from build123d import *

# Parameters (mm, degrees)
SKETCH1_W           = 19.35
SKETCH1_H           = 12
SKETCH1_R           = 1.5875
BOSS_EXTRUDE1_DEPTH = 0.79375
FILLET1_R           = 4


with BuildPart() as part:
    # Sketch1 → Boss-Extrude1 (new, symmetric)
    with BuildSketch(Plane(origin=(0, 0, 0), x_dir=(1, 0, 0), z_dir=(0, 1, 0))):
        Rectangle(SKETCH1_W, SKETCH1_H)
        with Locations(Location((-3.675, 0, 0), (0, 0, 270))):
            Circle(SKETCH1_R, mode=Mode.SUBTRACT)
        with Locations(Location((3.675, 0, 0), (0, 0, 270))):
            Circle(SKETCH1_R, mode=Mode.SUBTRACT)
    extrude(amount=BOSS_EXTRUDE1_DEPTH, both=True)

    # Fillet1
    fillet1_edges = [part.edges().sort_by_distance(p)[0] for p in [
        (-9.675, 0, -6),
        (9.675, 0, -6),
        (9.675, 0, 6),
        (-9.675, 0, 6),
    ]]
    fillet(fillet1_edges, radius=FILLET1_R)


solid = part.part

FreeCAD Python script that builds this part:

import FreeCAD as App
import Part
import Sketcher

V = App.Vector
Q = App.Units.Quantity


def edges_at(feature, points):
    """Names of the edges that pass closest to the given points."""
    edges = feature.Shape.Edges
    near = lambda p: min(range(len(edges)), key=lambda i: edges[i].distToShape(Part.Vertex(*p))[0])
    return sorted({f"Edge{near(p) + 1}" for p in points})

doc = App.newDocument("Part")
params = doc.addObject("Spreadsheet::Sheet", "Params")
for row, (alias, value) in enumerate([
    ("sketch1_height", "12 mm"),
    ("sketch1_width", "19.35 mm"),
    ("pad1_length", "1.5875 mm"),
    ("fillet_radius", "4 mm"),
], start=1):
    params.set(f"A{row}", alias)
    params.set(f"B{row}", "=" + value)
    params.setAlias(f"B{row}", alias)

body = doc.addObject("PartDesign::Body", "Body")

sketch1 = doc.addObject("Sketcher::SketchObject", "Sketch")
body.addObject(sketch1)
sketch1.AttachmentSupport = (doc.XZ_Plane, [""])
sketch1.MapMode = "FlatFace"
sketch1.addGeometry(Part.LineSegment(V(-9.7, -6, 0), V(-9.7, 6, 0)), False)
sketch1.addGeometry(Part.LineSegment(V(-9.7, 6, 0), V(9.7, 6, 0)), False)
sketch1.addGeometry(Part.LineSegment(V(9.7, 6, 0), V(9.7, -6, 0)), False)
sketch1.addGeometry(Part.LineSegment(V(9.7, -6, 0), V(-9.7, -6, 0)), False)
sketch1.addGeometry(Part.Circle(V(-3.7, 0, 0), V(0, 0, 1), 1.6), False)
sketch1.addGeometry(Part.Circle(V(3.7, 0, 0), V(0, 0, 1), 1.6), False)
sketch1.addConstraint(Sketcher.Constraint("Coincident", 0, 2, 1, 1))
sketch1.addConstraint(Sketcher.Constraint("Coincident", 1, 2, 2, 1))
sketch1.addConstraint(Sketcher.Constraint("Coincident", 2, 2, 3, 1))
sketch1.addConstraint(Sketcher.Constraint("Coincident", 3, 2, 0, 1))
sketch1.addConstraint(Sketcher.Constraint("Vertical", 0))
sketch1.addConstraint(Sketcher.Constraint("Horizontal", 1))
sketch1.addConstraint(Sketcher.Constraint("Vertical", 2))
sketch1.addConstraint(Sketcher.Constraint("Horizontal", 3))
sketch1.addConstraint(Sketcher.Constraint("Equal", 4, 5))
sketch1.addConstraint(Sketcher.Constraint("Symmetric", 4, 3, 5, 3, -1, 1))
sketch1.addConstraint(Sketcher.Constraint("Symmetric", 0, 2, 2, 2, -1, 1))
sketch1.addConstraint(Sketcher.Constraint("PointOnObject", 4, 3, -1))
sketch1.addConstraint(Sketcher.Constraint("DistanceY", 0, 1, 0, 2, Q("12 mm")))
sketch1.addConstraint(Sketcher.Constraint("Diameter", 4, Q("3.175 mm")))
sketch1.addConstraint(Sketcher.Constraint("DistanceX", 0, 2, 4, 3, Q("6 mm")))
sketch1.addConstraint(Sketcher.Constraint("DistanceX", 1, 1, 1, 2, Q("19.35 mm")))
sketch1.setExpression("Constraints[12]", "Params.sketch1_height")
sketch1.setExpression("Constraints[15]", "Params.sketch1_width")
pad1 = doc.addObject("PartDesign::Pad", "Pad")
body.addObject(pad1)
pad1.Profile = sketch1
pad1.setExpression("Length", "Params.pad1_length")
pad1.Midplane = True
doc.recompute()

fillet = doc.addObject("PartDesign::Fillet", "Fillet")
body.addObject(fillet)
fillet.Base = (pad1, edges_at(pad1, [
    (-9.675, 0, -6),
    (9.675, 0, -6),
    (9.675, 0, 6),
    (-9.675, 0, 6),
]))
fillet.setExpression("Radius", "Params.fillet_radius")

doc.recompute()
